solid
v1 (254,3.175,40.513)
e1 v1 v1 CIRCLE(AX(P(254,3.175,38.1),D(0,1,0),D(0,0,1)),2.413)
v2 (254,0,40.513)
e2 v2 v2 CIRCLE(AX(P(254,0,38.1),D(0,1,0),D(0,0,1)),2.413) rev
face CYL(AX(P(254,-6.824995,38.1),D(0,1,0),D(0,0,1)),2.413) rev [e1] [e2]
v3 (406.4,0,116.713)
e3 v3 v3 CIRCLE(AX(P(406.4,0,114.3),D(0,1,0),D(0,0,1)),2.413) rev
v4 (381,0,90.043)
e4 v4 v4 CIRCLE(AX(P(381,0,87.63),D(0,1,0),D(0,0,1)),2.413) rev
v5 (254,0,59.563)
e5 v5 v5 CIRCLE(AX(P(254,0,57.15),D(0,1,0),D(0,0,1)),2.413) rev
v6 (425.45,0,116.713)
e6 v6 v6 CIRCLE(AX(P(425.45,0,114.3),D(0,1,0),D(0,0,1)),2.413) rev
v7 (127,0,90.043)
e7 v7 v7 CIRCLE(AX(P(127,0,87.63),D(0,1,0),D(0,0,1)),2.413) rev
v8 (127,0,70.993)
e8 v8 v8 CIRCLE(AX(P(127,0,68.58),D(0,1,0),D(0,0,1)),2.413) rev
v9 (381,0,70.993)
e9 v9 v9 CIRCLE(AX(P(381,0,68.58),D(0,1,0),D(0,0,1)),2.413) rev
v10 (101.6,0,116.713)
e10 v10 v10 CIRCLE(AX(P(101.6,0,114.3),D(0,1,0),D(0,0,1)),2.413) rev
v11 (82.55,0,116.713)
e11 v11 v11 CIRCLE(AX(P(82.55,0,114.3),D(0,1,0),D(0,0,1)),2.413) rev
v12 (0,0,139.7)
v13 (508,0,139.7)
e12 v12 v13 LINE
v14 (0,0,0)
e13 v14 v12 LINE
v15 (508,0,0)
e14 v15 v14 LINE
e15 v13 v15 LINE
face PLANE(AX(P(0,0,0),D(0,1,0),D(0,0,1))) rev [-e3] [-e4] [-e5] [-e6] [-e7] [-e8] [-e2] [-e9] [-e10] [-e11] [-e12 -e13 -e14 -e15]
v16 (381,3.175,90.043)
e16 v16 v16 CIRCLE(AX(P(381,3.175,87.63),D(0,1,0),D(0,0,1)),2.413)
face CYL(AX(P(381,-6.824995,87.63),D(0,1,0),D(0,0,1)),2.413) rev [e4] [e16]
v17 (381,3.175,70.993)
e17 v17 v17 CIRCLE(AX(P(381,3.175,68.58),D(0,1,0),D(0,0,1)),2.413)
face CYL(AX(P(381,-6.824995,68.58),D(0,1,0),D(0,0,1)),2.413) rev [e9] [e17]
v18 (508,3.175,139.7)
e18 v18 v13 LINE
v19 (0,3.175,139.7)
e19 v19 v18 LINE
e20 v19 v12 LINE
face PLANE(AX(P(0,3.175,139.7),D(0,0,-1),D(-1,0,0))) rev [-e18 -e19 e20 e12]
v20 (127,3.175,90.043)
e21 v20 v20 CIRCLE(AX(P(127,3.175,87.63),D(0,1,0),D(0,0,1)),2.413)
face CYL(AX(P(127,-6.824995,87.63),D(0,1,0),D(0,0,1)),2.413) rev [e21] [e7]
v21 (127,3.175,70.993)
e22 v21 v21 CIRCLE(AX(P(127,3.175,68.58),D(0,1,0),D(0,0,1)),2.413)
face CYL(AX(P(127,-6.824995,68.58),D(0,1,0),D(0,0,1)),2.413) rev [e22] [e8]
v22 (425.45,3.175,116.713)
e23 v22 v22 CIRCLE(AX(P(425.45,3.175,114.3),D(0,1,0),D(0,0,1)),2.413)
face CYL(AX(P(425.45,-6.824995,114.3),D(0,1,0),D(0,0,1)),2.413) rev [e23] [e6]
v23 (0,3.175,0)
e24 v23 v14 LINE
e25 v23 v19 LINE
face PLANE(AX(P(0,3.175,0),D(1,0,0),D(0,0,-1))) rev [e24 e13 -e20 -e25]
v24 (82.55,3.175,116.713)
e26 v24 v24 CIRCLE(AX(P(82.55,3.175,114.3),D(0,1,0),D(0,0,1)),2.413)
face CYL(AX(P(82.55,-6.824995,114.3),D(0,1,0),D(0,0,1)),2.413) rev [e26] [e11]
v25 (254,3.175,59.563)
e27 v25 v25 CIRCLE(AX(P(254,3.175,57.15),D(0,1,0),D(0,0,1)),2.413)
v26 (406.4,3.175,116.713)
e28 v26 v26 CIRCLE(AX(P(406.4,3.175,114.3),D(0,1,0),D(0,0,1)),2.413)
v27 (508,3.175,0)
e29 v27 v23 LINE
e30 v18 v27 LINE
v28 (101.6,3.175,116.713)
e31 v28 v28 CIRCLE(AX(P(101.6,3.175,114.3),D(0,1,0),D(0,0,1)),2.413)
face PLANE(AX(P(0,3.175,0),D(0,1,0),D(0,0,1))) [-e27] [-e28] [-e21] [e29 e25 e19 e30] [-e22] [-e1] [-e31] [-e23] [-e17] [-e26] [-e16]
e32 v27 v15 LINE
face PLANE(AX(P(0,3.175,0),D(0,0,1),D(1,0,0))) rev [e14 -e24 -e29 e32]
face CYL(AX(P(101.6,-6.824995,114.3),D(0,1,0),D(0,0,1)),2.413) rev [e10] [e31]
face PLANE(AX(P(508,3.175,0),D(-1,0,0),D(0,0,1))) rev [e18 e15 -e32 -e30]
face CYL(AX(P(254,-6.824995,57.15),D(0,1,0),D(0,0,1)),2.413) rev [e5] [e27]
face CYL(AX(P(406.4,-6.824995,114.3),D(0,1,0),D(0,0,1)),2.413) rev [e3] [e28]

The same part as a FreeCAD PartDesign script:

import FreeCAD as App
import Part
import Sketcher
Q = App.Units.Quantity


def add_polygon(sketch, points):
    """Adds a closed chain of lines whose ends are joined by coincident constraints."""
    first, n = sketch.GeometryCount, len(points)
    for a, b in zip(points, points[1:] + points[:1]):
        sketch.addGeometry(Part.LineSegment(App.Vector(*a, 0), App.Vector(*b, 0)), False)
    for i in range(n):
        sketch.addConstraint(Sketcher.Constraint("Coincident", first + i, 2, first + (i + 1) % n, 1))

doc = App.newDocument("Part")
body = doc.addObject("PartDesign::Body", "Body")

# Sketch on XZ plane
sketch1 = doc.addObject("Sketcher::SketchObject", "Sketch")
body.addObject(sketch1)
sketch1.AttachmentSupport = (doc.XZ_Plane, [""])
sketch1.MapMode = "FlatFace"
add_polygon(sketch1, [(0, 0), (0, 140), (508, 140), (508, 0)])  # lines 0-3
sketch1.addConstraint([
    Sketcher.Constraint("Vertical", 0),
    Sketcher.Constraint("Horizontal", 1),
    Sketcher.Constraint("Vertical", 2),
    Sketcher.Constraint("Horizontal", 3),
    Sketcher.Constraint("Coincident", 3, 2, -1, 1),
    Sketcher.Constraint("DistanceX", 1, 1, 1, 2, Q("20 in")),
    Sketcher.Constraint("DistanceY", 0, 1, 0, 2, Q("5.5 in")),
])
pad1 = doc.addObject("PartDesign::Pad", "Pad")
body.addObject(pad1)
pad1.Profile = sketch1
pad1.Length = Q("0.125 in")
pad1.Reversed = True

# Sketch on XZ plane
sketch2 = doc.addObject("Sketcher::SketchObject", "Sketch001")
body.addObject(sketch2)
sketch2.AttachmentSupport = (doc.XZ_Plane, [""])
sketch2.MapMode = "FlatFace"
sketch2.AttachmentOffset = App.Placement(App.Vector(0, 0, -0.125 * 25.4), App.Rotation())
sketch2.addGeometry([
    Part.Circle(App.Vector(82.5, 114.3, 0), App.Vector(0, 0, 1), 2.4),  # 0
    Part.Circle(App.Vector(101.6, 114.3, 0), App.Vector(0, 0, 1), 2.4),  # 1
    Part.Circle(App.Vector(127, 87.6, 0), App.Vector(0, 0, 1), 2.4),  # 2
    Part.Circle(App.Vector(127, 68.6, 0), App.Vector(0, 0, 1), 2.4),  # 3
    Part.Circle(App.Vector(254, 38.1, 0), App.Vector(0, 0, 1), 2.4),  # 4
    Part.Circle(App.Vector(254, 57.1, 0), App.Vector(0, 0, 1), 2.4),  # 5
    Part.Circle(App.Vector(425.4, 114.3, 0), App.Vector(0, 0, 1), 2.4),  # 6
    Part.Circle(App.Vector(406.4, 114.3, 0), App.Vector(0, 0, 1), 2.4),  # 7
    Part.Circle(App.Vector(381, 87.6, 0), App.Vector(0, 0, 1), 2.4),  # 8
    Part.Circle(App.Vector(381, 68.6, 0), App.Vector(0, 0, 1), 2.4),  # 9
], False)
sketch2.addConstraint([
    Sketcher.Constraint("Equal", 0, 1),
    Sketcher.Constraint("Equal", 1, 2),
    Sketcher.Constraint("Equal", 2, 3),
    Sketcher.Constraint("Equal", 3, 4),
    Sketcher.Constraint("Equal", 4, 5),
    Sketcher.Constraint("Equal", 5, 6),
    Sketcher.Constraint("Equal", 6, 7),
    Sketcher.Constraint("Equal", 7, 8),
    Sketcher.Constraint("Equal", 8, 9),
    Sketcher.Constraint("Horizontal", 0, 3, 1, 3),
    Sketcher.Constraint("Horizontal", 1, 3, 6, 3),
    Sketcher.Constraint("Horizontal", 6, 3, 7, 3),
    Sketcher.Constraint("Horizontal", 2, 3, 8, 3),
    Sketcher.Constraint("Horizontal", 3, 3, 9, 3),
    Sketcher.Constraint("Vertical", 2, 3, 3, 3),
    Sketcher.Constraint("Vertical", 4, 3, 5, 3),
    Sketcher.Constraint("Vertical", 8, 3, 9, 3),
    Sketcher.Constraint("Diameter", 0, Q("0.19 in")),
    Sketcher.Constraint("DistanceX", -1, 1, 1, 3, Q("4 in")),
    Sketcher.Constraint("DistanceX", -1, 1, 2, 3, Q("5 in")),
    Sketcher.Constraint("DistanceX", -1, 1, 4, 3, Q("10 in")),
    Sketcher.Constraint("DistanceX", -1, 1, 7, 3, Q("16 in")),
    Sketcher.Constraint("DistanceX", -1, 1, 8, 3, Q("15 in")),
    Sketcher.Constraint("DistanceY", 4, 3, 1, 3, Q("3 in")),
    Sketcher.Constraint("DistanceY", -1, 1, 0, 3, Q("4.5 in")),
    Sketcher.Constraint("DistanceY", -1, 1, 3, 3, Q("2.7 in")),
    Sketcher.Constraint("DistanceY", 5, 3, 2, 3, Q("1.2 in")),
    Sketcher.Constraint("DistanceX", -1, 1, 0, 3, Q("3.25 in")),
    Sketcher.Constraint("DistanceY", -1, 1, 2, 3, Q("3.45 in")),
    Sketcher.Constraint("DistanceX", -1, 1, 6, 3, Q("16.75 in")),
])
pocket1 = doc.addObject("PartDesign::Pocket", "Pocket")
body.addObject(pocket1)
pocket1.Profile = sketch2
pocket1.Length = Q("0.125 in")
pocket1.Reversed = True

doc.recompute()
